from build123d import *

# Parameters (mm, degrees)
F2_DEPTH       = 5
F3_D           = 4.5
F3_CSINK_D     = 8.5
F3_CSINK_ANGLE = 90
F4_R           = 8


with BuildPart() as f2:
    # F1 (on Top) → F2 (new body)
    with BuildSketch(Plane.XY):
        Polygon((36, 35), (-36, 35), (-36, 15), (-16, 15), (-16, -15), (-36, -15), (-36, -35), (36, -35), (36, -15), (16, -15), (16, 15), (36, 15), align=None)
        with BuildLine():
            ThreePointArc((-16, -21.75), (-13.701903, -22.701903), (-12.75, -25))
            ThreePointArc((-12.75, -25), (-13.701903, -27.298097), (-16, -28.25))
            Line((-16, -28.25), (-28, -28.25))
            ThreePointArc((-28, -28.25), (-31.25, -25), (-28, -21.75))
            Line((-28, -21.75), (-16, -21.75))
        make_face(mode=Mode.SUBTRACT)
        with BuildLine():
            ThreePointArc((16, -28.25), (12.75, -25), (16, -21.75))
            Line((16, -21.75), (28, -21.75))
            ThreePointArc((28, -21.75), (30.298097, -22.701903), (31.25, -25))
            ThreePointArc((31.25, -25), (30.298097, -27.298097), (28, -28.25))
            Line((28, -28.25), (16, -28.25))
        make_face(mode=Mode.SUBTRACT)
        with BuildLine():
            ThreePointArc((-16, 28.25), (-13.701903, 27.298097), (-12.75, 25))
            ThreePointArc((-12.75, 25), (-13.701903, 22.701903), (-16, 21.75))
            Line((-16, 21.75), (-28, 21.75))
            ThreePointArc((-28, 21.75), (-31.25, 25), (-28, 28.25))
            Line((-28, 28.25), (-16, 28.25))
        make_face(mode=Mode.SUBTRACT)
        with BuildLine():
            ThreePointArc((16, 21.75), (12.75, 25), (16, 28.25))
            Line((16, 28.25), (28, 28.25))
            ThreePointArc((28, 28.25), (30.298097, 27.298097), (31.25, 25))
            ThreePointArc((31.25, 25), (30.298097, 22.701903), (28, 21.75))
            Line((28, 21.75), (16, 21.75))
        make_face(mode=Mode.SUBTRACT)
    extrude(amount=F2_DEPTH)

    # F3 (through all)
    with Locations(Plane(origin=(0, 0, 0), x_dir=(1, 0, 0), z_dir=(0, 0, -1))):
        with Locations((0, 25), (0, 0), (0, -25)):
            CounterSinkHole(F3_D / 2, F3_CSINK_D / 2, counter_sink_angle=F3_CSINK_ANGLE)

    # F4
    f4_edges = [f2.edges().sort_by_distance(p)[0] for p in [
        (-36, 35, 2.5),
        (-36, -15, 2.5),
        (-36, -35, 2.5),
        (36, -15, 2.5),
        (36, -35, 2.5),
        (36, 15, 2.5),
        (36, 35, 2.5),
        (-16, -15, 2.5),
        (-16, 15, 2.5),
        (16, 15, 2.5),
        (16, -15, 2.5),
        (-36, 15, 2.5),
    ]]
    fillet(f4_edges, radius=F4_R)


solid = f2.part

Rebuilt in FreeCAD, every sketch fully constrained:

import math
import FreeCAD as App
import Part
import Sketcher
Q = App.Units.Quantity


def edges_at(feature, points):
    """Names of the edges that pass closest to the given points."""
    edges = feature.Shape.Edges
    near = lambda p: min(range(len(edges)), key=lambda i: edges[i].distToShape(Part.Vertex(*p))[0])
    return sorted({f"Edge{near(p) + 1}" for p in points})


def add_polygon(sketch, points):
    """Adds a closed chain of lines whose ends are joined by coincident constraints."""
    first, n = sketch.GeometryCount, len(points)
    for a, b in zip(points, points[1:] + points[:1]):
        sketch.addGeometry(Part.LineSegment(App.Vector(*a, 0), App.Vector(*b, 0)), False)
    for i in range(n):
        sketch.addConstraint(Sketcher.Constraint("Coincident", first + i, 2, first + (i + 1) % n, 1))

doc = App.newDocument("Part")
body = doc.addObject("PartDesign::Body", "Body")

# Sketch on XY plane
sketch1 = body.newObject("Sketcher::SketchObject", "Sketch")
sketch1.AttachmentSupport = (doc.getObject("XY_Plane"), [""])
sketch1.MapMode = "FlatFace"
add_polygon(sketch1, [(36, 35), (-36, 35), (-36, 15), (-16, 15), (-16, -15), (-36, -15), (-36, -35), (36, -35), (36, -15), (16, -15), (16, 15), (36, 15)])  # lines 0-11
sketch1.addGeometry(Part.LineSegment(App.Vector(-28, -21.75, 0), App.Vector(-16, -21.75, 0)), False)  # 12
sketch1.addGeometry(Part.ArcOfCircle(Part.Circle(App.Vector(-16, -25, 0), App.Vector(0, 0, 1), 3.25), math.radians(0.000002), math.radians(89.999998)), False)  # 13
sketch1.addGeometry(Part.ArcOfCircle(Part.Circle(App.Vector(-16, -25, 0), App.Vector(0, 0, 1), 3.25), math.radians(-89.999998), math.radians(-0.000002)), False)  # 14
sketch1.addGeometry(Part.LineSegment(App.Vector(-16, -28.25, 0), App.Vector(-28, -28.25, 0)), False)  # 15
sketch1.addGeometry(Part.ArcOfCircle(Part.Circle(App.Vector(-28, -25, 0), App.Vector(0, 0, 1), 3.25), math.radians(90), math.radians(270)), False)  # 16
sketch1.addGeometry(Part.LineSegment(App.Vector(28, -28.25, 0), App.Vector(16, -28.25, 0)), False)  # 17
sketch1.addGeometry(Part.ArcOfCircle(Part.Circle(App.Vector(16, -25, 0), App.Vector(0, 0, 1), 3.25), math.radians(90), math.radians(270)), False)  # 18
sketch1.addGeometry(Part.LineSegment(App.Vector(16, -21.75, 0), App.Vector(28, -21.75, 0)), False)  # 19
sketch1.addGeometry(Part.ArcOfCircle(Part.Circle(App.Vector(28, -25, 0), App.Vector(0, 0, 1), 3.25), math.radians(0.000002), math.radians(89.999998)), False)  # 20
sketch1.addGeometry(Part.ArcOfCircle(Part.Circle(App.Vector(28, -25, 0), App.Vector(0, 0, 1), 3.25), math.radians(-89.999998), math.radians(-0.000002)), False)  # 21
sketch1.addGeometry(Part.LineSegment(App.Vector(-28, 28.25, 0), App.Vector(-16, 28.25, 0)), False)  # 22
sketch1.addGeometry(Part.ArcOfCircle(Part.Circle(App.Vector(-16, 25, 0), App.Vector(0, 0, 1), 3.25), math.radians(0.000002), math.radians(89.999998)), False)  # 23
sketch1.addGeometry(Part.ArcOfCircle(Part.Circle(App.Vector(-16, 25, 0), App.Vector(0, 0, 1), 3.25), math.radians(-89.999998), math.radians(-0.000002)), False)  # 24
sketch1.addGeometry(Part.LineSegment(App.Vector(-16, 21.75, 0), App.Vector(-28, 21.75, 0)), False)  # 25
sketch1.addGeometry(Part.ArcOfCircle(Part.Circle(App.Vector(-28, 25, 0), App.Vector(0, 0, 1), 3.25), math.radians(90), math.radians(270)), False)  # 26
sketch1.addGeometry(Part.LineSegment(App.Vector(28, 21.75, 0), App.Vector(16, 21.75, 0)), False)  # 27
sketch1.addGeometry(Part.ArcOfCircle(Part.Circle(App.Vector(16, 25, 0), App.Vector(0, 0, 1), 3.25), math.radians(90), math.radians(270)), False)  # 28
sketch1.addGeometry(Part.LineSegment(App.Vector(16, 28.25, 0), App.Vector(28, 28.25, 0)), False)  # 29
sketch1.addGeometry(Part.ArcOfCircle(Part.Circle(App.Vector(28, 25, 0), App.Vector(0, 0, 1), 3.25), math.radians(0.000002), math.radians(89.999998)), False)  # 30
sketch1.addGeometry(Part.ArcOfCircle(Part.Circle(App.Vector(28, 25, 0), App.Vector(0, 0, 1), 3.25), math.radians(-89.999998), math.radians(-0.000002)), False)  # 31
sketch1.addConstraint(Sketcher.Constraint("Tangent", 12, 2, 13, 2))
sketch1.addConstraint(Sketcher.Constraint("Tangent", 13, 1, 14, 2))
sketch1.addConstraint(Sketcher.Constraint("Tangent", 14, 1, 15, 1))
sketch1.addConstraint(Sketcher.Constraint("Tangent", 15, 2, 16, 2))
sketch1.addConstraint(Sketcher.Constraint("Tangent", 16, 1, 12, 1))
sketch1.addConstraint(Sketcher.Constraint("Tangent", 17, 2, 18, 2))
sketch1.addConstraint(Sketcher.Constraint("Tangent", 18, 1, 19, 1))
sketch1.addConstraint(Sketcher.Constraint("Tangent", 19, 2, 20, 2))
sketch1.addConstraint(Sketcher.Constraint("Tangent", 20, 1, 21, 2))
sketch1.addConstraint(Sketcher.Constraint("Tangent", 21, 1, 17, 1))
sketch1.addConstraint(Sketcher.Constraint("Tangent", 22, 2, 23, 2))
sketch1.addConstraint(Sketcher.Constraint("Tangent", 23, 1, 24, 2))
sketch1.addConstraint(Sketcher.Constraint("Tangent", 24, 1, 25, 1))
sketch1.addConstraint(Sketcher.Constraint("Tangent", 25, 2, 26, 2))
sketch1.addConstraint(Sketcher.Constraint("Tangent", 26, 1, 22, 1))
sketch1.addConstraint(Sketcher.Constraint("Tangent", 27, 2, 28, 2))
sketch1.addConstraint(Sketcher.Constraint("Tangent", 28, 1, 29, 1))
sketch1.addConstraint(Sketcher.Constraint("Tangent", 29, 2, 30, 2))
sketch1.addConstraint(Sketcher.Constraint("Tangent", 30, 1, 31, 2))
sketch1.addConstraint(Sketcher.Constraint("Tangent", 31, 1, 27, 1))
sketch1.addConstraint(Sketcher.Constraint("Horizontal", 0))
sketch1.addConstraint(Sketcher.Constraint("Vertical", 1))
sketch1.addConstraint(Sketcher.Constraint("Horizontal", 2))
sketch1.addConstraint(Sketcher.Constraint("Vertical", 3))
sketch1.addConstraint(Sketcher.Constraint("Horizontal", 4))
sketch1.addConstraint(Sketcher.Constraint("Vertical", 5))
sketch1.addConstraint(Sketcher.Constraint("Horizontal", 6))
sketch1.addConstraint(Sketcher.Constraint("Vertical", 7))
sketch1.addConstraint(Sketcher.Constraint("Horizontal", 8))
sketch1.addConstraint(Sketcher.Constraint("Vertical", 9))
sketch1.addConstraint(Sketcher.Constraint("Horizontal", 10))
sketch1.addConstraint(Sketcher.Constraint("Vertical", 11))
sketch1.addConstraint(Sketcher.Constraint("Horizontal", 12))
sketch1.addConstraint(Sketcher.Constraint("Horizontal", 15))
sketch1.addConstraint(Sketcher.Constraint("Horizontal", 17))
sketch1.addConstraint(Sketcher.Constraint("Horizontal", 19))
sketch1.addConstraint(Sketcher.Constraint("Horizontal", 22))
sketch1.addConstraint(Sketcher.Constraint("Horizontal", 25))
sketch1.addConstraint(Sketcher.Constraint("Horizontal", 27))
sketch1.addConstraint(Sketcher.Constraint("Horizontal", 29))
sketch1.addConstraint(Sketcher.Constraint("Equal", 13, 14))
sketch1.addConstraint(Sketcher.Constraint("Equal", 16, 18))
sketch1.addConstraint(Sketcher.Constraint("Equal", 18, 20))
sketch1.addConstraint(Sketcher.Constraint("Equal", 21, 23))
sketch1.addConstraint(Sketcher.Constraint("Equal", 23, 24))
sketch1.addConstraint(Sketcher.Constraint("Equal", 26, 28))
sketch1.addConstraint(Sketcher.Constraint("Equal", 28, 30))
sketch1.addConstraint(Sketcher.Constraint("Symmetric", 18, 3, 23, 3, -1, 1))
sketch1.addConstraint(Sketcher.Constraint("Symmetric", 13, 3, 28, 3, -1, 1))
sketch1.addConstraint(Sketcher.Constraint("Symmetric", 0, 2, 6, 2, -1, 1))
sketch1.addConstraint(Sketcher.Constraint("Symmetric", 2, 2, 8, 2, -1, 1))
sketch1.addConstraint(Sketcher.Constraint("Symmetric", 4, 2, 10, 2, -1, 1))
sketch1.addConstraint(Sketcher.Constraint("Symmetric", 13, 3, 18, 3, -2))
sketch1.addConstraint(Sketcher.Constraint("Symmetric", 4, 2, 7, 2, -2))
sketch1.addConstraint(Sketcher.Constraint("Symmetric", 20, 1, 30, 1, -1))
sketch1.addConstraint(Sketcher.Constraint("Horizontal", 21, 3, 13, 1))
sketch1.addConstraint(Sketcher.Constraint("Horizontal", 13, 1, 20, 1))
sketch1.addConstraint(Sketcher.Constraint("Horizontal", 31, 3, 23, 1))
sketch1.addConstraint(Sketcher.Constraint("Vertical", 16, 3, 26, 3))
sketch1.addConstraint(Sketcher.Constraint("Vertical", 24, 3, 2, 2))
sketch1.addConstraint(Sketcher.Constraint("Equal", 15, 17))
sketch1.addConstraint(Sketcher.Constraint("Equal", 10, 1))
sketch1.addConstraint(Sketcher.Constraint("DistanceX", 0, 2, 0, 1, Q("72 mm")))
sketch1.addConstraint(Sketcher.Constraint("DistanceX", 2, 1, 2, 2, Q("20 mm")))
sketch1.addConstraint(Sketcher.Constraint("DistanceX", 12, 1, 12, 2, Q("12 mm")))
sketch1.addConstraint(Sketcher.Constraint("DistanceY", 3, 2, 3, 1, Q("30 mm")))
sketch1.addConstraint(Sketcher.Constraint("Radius", 13, Q("3.25 mm")))
sketch1.addConstraint(Sketcher.Constraint("DistanceY", 13, 3, -1, 1, Q("25 mm")))
pad1 = body.newObject("PartDesign::Pad", "Pad")
pad1.Profile = sketch1
pad1.Length = 5

# Sketch on XY plane
sketch2 = body.newObject("Sketcher::SketchObject", "Sketch001")
sketch2.AttachmentSupport = (doc.getObject("XY_Plane"), [""])
sketch2.MapMode = "FlatFace"
sketch2.addGeometry(Part.Circle(App.Vector(0, -25, 0), App.Vector(0, 0, 1), 2.25), False)
sketch2.addGeometry(Part.Circle(App.Vector(0, 0, 0), App.Vector(0, 0, 1), 2.25), False)
sketch2.addGeometry(Part.Circle(App.Vector(0, 25, 0), App.Vector(0, 0, 1), 2.25), False)
sketch2.addConstraint(Sketcher.Constraint("Coincident", 1, 3, -1, 1))
sketch2.addConstraint(Sketcher.Constraint("Equal", 0, 1))
sketch2.addConstraint(Sketcher.Constraint("Equal", 1, 2))
sketch2.addConstraint(Sketcher.Constraint("Symmetric", 0, 3, 2, 3, -1, 1))
sketch2.addConstraint(Sketcher.Constraint("PointOnObject", 0, 3, -2))
sketch2.addConstraint(Sketcher.Constraint("Diameter", 0, Q("4.5 mm")))
sketch2.addConstraint(Sketcher.Constraint("DistanceY", 0, 3, -1, 1, Q("25 mm")))
doc.recompute()
hole = body.newObject("PartDesign::Hole", "Hole")
hole.Profile = sketch2
hole.ThreadType = "None"
hole.Diameter = 4.5
hole.DepthType = "ThroughAll"
hole.HoleCutType = "Countersink"
hole.HoleCutDiameter = 8.5
hole.HoleCutCountersinkAngle = 90
hole.Reversed = True
doc.recompute()

fillet = body.newObject("PartDesign::Fillet", "Fillet")
fillet.Base = (hole, edges_at(hole, [
    (-36, 35, 2.5),
    (-36, -15, 2.5),
    (-36, -35, 2.5),
    (36, -15, 2.5),
    (36, -35, 2.5),
    (36, 15, 2.5),
    (36, 35, 2.5),
    (-16, -15, 2.5),
    (-16, 15, 2.5),
    (16, 15, 2.5),
    (16, -15, 2.5),
    (-36, 15, 2.5),
]))
fillet.Radius = 8

doc.recompute()
